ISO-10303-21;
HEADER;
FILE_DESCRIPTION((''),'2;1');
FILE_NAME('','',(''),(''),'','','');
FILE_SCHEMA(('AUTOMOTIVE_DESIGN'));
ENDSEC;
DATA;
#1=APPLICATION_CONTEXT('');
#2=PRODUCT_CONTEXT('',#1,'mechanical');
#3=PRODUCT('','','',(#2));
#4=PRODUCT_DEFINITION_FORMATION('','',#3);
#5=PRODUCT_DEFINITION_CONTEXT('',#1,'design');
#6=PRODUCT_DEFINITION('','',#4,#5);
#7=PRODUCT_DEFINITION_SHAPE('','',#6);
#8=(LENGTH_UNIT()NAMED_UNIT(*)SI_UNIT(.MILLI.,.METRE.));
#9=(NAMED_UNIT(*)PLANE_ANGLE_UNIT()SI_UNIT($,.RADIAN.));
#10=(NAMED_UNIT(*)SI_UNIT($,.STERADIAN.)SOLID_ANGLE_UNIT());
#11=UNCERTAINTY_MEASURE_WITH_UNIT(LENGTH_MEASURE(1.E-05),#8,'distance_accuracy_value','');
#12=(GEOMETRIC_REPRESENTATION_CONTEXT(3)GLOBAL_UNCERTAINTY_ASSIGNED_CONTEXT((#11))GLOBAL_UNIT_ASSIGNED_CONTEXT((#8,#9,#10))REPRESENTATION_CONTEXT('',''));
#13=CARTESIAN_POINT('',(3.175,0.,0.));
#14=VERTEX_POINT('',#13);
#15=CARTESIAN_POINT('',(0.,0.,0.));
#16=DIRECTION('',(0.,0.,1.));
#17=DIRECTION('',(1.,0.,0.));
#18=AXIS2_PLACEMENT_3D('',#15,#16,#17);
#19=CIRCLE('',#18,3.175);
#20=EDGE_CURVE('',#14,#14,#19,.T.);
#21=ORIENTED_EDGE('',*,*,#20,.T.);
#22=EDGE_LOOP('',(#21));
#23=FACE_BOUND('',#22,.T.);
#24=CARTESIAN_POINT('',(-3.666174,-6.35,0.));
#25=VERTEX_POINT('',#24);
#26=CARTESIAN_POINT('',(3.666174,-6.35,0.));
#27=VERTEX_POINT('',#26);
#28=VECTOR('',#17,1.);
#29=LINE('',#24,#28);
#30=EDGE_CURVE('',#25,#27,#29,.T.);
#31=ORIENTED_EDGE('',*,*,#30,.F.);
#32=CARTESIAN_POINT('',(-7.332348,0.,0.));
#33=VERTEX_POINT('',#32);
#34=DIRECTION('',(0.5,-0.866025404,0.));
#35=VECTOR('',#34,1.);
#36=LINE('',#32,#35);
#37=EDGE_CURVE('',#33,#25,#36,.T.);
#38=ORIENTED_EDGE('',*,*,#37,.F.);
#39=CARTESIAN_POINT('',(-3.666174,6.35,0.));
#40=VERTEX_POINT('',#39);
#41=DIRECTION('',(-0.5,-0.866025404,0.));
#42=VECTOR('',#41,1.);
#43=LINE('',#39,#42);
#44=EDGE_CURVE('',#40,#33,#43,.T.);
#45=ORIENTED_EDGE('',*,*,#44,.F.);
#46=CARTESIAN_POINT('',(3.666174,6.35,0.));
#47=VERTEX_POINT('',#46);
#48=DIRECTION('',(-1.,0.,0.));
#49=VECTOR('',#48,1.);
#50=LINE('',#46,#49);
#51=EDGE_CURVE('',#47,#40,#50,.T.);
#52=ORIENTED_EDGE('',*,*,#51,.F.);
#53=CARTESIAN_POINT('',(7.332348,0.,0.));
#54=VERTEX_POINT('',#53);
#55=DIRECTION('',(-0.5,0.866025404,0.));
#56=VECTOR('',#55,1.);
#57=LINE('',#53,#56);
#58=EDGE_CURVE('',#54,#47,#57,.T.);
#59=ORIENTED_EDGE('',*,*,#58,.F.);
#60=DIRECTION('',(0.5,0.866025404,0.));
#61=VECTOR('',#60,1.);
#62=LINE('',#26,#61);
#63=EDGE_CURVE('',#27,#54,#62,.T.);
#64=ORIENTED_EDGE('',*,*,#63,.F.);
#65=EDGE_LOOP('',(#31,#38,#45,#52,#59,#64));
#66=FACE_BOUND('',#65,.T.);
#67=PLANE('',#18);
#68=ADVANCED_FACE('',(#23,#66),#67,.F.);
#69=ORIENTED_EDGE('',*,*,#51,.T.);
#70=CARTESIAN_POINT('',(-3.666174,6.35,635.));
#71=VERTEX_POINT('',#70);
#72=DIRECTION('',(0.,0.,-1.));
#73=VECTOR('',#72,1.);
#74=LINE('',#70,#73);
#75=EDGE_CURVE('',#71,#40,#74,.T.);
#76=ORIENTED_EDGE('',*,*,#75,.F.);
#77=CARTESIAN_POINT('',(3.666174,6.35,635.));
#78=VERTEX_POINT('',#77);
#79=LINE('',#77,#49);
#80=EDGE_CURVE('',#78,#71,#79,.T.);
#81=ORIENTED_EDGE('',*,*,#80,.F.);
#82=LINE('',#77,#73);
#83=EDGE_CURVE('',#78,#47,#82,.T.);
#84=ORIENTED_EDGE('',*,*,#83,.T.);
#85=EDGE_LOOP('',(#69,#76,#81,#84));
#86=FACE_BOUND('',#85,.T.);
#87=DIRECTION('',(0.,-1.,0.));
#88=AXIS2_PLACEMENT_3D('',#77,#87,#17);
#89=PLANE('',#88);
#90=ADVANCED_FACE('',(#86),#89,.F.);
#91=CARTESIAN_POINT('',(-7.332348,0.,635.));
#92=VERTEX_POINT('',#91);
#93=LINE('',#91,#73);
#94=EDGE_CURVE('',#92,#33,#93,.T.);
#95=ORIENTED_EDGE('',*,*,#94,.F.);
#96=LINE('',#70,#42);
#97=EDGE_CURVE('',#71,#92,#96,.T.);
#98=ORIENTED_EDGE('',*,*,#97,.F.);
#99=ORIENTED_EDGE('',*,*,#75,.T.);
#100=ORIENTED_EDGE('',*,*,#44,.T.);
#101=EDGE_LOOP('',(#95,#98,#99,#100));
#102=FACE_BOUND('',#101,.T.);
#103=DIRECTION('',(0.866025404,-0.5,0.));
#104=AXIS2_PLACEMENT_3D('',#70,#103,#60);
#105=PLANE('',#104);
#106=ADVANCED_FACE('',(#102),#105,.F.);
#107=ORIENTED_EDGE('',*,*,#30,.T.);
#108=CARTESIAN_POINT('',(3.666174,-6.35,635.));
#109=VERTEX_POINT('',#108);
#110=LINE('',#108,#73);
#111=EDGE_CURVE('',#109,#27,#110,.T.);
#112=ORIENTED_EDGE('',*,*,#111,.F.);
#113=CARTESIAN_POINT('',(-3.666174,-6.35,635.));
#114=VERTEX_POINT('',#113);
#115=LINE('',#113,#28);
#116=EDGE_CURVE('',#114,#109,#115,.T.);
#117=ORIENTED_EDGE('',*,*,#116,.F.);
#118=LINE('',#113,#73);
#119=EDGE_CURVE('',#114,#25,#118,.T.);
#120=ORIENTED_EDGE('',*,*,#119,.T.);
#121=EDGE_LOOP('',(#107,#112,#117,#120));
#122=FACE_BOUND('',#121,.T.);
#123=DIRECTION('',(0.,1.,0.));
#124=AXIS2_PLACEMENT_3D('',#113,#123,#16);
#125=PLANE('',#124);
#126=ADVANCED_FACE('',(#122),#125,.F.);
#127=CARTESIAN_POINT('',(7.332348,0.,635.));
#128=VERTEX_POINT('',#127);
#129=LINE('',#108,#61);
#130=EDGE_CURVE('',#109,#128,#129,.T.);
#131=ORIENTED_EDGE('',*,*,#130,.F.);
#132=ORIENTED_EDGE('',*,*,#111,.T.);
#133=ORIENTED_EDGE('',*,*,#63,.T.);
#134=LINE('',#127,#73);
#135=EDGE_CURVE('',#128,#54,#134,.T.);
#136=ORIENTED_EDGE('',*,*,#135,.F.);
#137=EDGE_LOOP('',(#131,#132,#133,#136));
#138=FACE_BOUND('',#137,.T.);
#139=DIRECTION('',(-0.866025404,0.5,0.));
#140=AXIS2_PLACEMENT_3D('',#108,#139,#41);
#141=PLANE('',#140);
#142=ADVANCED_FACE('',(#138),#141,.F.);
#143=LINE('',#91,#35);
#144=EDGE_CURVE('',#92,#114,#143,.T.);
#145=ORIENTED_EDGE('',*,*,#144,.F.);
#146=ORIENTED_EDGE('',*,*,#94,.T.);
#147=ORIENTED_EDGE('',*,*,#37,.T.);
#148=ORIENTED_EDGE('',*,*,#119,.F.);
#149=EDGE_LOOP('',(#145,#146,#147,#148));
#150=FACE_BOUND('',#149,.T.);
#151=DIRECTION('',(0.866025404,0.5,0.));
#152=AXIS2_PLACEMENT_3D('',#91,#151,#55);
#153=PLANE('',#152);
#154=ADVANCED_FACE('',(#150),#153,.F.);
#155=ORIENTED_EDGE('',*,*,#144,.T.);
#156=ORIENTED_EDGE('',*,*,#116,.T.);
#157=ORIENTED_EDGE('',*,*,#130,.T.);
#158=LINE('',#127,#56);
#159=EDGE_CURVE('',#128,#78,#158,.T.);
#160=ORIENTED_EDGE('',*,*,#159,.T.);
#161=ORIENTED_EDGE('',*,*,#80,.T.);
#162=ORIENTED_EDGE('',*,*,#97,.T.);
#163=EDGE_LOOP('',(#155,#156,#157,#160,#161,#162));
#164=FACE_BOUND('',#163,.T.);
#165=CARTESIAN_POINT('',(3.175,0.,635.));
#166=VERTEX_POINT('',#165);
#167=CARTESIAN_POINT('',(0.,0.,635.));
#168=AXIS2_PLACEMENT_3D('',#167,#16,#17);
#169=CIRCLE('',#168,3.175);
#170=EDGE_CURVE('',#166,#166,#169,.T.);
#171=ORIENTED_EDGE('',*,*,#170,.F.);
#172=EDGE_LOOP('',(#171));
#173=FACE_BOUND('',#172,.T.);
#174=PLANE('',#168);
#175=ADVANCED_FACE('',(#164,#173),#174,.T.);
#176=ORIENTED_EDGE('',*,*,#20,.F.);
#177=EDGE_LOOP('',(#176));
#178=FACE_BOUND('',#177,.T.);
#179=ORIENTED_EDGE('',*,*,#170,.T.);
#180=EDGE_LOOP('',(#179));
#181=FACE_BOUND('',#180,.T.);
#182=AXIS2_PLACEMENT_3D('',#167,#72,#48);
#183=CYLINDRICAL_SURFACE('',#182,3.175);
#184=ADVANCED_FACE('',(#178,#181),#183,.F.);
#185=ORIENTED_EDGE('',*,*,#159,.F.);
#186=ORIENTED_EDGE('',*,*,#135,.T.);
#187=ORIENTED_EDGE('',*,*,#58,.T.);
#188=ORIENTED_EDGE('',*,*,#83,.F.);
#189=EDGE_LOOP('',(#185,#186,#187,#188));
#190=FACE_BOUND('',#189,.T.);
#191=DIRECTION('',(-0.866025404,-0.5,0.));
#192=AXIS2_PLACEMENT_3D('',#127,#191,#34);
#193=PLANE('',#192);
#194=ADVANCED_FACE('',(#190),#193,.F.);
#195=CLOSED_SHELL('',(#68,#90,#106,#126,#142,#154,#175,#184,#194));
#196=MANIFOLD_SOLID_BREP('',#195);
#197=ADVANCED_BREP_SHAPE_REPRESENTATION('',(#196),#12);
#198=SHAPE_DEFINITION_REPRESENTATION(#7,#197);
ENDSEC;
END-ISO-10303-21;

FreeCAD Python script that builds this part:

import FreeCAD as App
import Part
import Sketcher
Q = App.Units.Quantity


def add_polygon(sketch, points):
    """Adds a closed chain of lines whose ends are joined by coincident constraints."""
    first, n = sketch.GeometryCount, len(points)
    for a, b in zip(points, points[1:] + points[:1]):
        sketch.addGeometry(Part.LineSegment(App.Vector(*a, 0), App.Vector(*b, 0)), False)
    for i in range(n):
        sketch.addConstraint(Sketcher.Constraint("Coincident", first + i, 2, first + (i + 1) % n, 1))

doc = App.newDocument("Part")
body = doc.addObject("PartDesign::Body", "Body")

# Sketch on XY plane
sketch1 = doc.addObject("Sketcher::SketchObject", "Sketch")
body.addObject(sketch1)
sketch1.AttachmentSupport = (doc.XY_Plane, [""])
sketch1.MapMode = "FlatFace"
add_polygon(sketch1, [(-3.666174, 6.35), (-7.332348, 0), (-3.666174, -6.35), (3.666174, -6.35), (7.332348, 0), (3.666174, 6.35)])  # lines 0-5
sketch1.addGeometry(Part.Circle(App.Vector(0, 0, 0), App.Vector(0, 0, 1), 3.175), False)  # 6
sketch1.addConstraint([
    Sketcher.Constraint("Horizontal", 2),
    Sketcher.Constraint("Horizontal", 5),
    Sketcher.Constraint("Coincident", 6, 3, -1, 1),
    Sketcher.Constraint("Symmetric", 0, 2, 3, 2, -1, 1),
    Sketcher.Constraint("Symmetric", 1, 2, 4, 2, -1, 1),
    Sketcher.Constraint("PointOnObject", 0, 2, -1),
    Sketcher.Constraint("Parallel", 0, 3),
    Sketcher.Constraint("Vertical", 2, 2, 4, 2),
    Sketcher.Constraint("Diameter", 6, Q("0.25 in")),
    Sketcher.Constraint("Angle", 0, Q("-120 deg")),
    Sketcher.Constraint("DistanceY", 2, 2, 4, 2, Q("0.5 in")),
    Sketcher.Constraint("DistanceX", 2, 1, 2, 2, 7.332348),
])
pad1 = doc.addObject("PartDesign::Pad", "Pad")
body.addObject(pad1)
pad1.Profile = sketch1
pad1.Length = Q("25 in")

doc.recompute()
